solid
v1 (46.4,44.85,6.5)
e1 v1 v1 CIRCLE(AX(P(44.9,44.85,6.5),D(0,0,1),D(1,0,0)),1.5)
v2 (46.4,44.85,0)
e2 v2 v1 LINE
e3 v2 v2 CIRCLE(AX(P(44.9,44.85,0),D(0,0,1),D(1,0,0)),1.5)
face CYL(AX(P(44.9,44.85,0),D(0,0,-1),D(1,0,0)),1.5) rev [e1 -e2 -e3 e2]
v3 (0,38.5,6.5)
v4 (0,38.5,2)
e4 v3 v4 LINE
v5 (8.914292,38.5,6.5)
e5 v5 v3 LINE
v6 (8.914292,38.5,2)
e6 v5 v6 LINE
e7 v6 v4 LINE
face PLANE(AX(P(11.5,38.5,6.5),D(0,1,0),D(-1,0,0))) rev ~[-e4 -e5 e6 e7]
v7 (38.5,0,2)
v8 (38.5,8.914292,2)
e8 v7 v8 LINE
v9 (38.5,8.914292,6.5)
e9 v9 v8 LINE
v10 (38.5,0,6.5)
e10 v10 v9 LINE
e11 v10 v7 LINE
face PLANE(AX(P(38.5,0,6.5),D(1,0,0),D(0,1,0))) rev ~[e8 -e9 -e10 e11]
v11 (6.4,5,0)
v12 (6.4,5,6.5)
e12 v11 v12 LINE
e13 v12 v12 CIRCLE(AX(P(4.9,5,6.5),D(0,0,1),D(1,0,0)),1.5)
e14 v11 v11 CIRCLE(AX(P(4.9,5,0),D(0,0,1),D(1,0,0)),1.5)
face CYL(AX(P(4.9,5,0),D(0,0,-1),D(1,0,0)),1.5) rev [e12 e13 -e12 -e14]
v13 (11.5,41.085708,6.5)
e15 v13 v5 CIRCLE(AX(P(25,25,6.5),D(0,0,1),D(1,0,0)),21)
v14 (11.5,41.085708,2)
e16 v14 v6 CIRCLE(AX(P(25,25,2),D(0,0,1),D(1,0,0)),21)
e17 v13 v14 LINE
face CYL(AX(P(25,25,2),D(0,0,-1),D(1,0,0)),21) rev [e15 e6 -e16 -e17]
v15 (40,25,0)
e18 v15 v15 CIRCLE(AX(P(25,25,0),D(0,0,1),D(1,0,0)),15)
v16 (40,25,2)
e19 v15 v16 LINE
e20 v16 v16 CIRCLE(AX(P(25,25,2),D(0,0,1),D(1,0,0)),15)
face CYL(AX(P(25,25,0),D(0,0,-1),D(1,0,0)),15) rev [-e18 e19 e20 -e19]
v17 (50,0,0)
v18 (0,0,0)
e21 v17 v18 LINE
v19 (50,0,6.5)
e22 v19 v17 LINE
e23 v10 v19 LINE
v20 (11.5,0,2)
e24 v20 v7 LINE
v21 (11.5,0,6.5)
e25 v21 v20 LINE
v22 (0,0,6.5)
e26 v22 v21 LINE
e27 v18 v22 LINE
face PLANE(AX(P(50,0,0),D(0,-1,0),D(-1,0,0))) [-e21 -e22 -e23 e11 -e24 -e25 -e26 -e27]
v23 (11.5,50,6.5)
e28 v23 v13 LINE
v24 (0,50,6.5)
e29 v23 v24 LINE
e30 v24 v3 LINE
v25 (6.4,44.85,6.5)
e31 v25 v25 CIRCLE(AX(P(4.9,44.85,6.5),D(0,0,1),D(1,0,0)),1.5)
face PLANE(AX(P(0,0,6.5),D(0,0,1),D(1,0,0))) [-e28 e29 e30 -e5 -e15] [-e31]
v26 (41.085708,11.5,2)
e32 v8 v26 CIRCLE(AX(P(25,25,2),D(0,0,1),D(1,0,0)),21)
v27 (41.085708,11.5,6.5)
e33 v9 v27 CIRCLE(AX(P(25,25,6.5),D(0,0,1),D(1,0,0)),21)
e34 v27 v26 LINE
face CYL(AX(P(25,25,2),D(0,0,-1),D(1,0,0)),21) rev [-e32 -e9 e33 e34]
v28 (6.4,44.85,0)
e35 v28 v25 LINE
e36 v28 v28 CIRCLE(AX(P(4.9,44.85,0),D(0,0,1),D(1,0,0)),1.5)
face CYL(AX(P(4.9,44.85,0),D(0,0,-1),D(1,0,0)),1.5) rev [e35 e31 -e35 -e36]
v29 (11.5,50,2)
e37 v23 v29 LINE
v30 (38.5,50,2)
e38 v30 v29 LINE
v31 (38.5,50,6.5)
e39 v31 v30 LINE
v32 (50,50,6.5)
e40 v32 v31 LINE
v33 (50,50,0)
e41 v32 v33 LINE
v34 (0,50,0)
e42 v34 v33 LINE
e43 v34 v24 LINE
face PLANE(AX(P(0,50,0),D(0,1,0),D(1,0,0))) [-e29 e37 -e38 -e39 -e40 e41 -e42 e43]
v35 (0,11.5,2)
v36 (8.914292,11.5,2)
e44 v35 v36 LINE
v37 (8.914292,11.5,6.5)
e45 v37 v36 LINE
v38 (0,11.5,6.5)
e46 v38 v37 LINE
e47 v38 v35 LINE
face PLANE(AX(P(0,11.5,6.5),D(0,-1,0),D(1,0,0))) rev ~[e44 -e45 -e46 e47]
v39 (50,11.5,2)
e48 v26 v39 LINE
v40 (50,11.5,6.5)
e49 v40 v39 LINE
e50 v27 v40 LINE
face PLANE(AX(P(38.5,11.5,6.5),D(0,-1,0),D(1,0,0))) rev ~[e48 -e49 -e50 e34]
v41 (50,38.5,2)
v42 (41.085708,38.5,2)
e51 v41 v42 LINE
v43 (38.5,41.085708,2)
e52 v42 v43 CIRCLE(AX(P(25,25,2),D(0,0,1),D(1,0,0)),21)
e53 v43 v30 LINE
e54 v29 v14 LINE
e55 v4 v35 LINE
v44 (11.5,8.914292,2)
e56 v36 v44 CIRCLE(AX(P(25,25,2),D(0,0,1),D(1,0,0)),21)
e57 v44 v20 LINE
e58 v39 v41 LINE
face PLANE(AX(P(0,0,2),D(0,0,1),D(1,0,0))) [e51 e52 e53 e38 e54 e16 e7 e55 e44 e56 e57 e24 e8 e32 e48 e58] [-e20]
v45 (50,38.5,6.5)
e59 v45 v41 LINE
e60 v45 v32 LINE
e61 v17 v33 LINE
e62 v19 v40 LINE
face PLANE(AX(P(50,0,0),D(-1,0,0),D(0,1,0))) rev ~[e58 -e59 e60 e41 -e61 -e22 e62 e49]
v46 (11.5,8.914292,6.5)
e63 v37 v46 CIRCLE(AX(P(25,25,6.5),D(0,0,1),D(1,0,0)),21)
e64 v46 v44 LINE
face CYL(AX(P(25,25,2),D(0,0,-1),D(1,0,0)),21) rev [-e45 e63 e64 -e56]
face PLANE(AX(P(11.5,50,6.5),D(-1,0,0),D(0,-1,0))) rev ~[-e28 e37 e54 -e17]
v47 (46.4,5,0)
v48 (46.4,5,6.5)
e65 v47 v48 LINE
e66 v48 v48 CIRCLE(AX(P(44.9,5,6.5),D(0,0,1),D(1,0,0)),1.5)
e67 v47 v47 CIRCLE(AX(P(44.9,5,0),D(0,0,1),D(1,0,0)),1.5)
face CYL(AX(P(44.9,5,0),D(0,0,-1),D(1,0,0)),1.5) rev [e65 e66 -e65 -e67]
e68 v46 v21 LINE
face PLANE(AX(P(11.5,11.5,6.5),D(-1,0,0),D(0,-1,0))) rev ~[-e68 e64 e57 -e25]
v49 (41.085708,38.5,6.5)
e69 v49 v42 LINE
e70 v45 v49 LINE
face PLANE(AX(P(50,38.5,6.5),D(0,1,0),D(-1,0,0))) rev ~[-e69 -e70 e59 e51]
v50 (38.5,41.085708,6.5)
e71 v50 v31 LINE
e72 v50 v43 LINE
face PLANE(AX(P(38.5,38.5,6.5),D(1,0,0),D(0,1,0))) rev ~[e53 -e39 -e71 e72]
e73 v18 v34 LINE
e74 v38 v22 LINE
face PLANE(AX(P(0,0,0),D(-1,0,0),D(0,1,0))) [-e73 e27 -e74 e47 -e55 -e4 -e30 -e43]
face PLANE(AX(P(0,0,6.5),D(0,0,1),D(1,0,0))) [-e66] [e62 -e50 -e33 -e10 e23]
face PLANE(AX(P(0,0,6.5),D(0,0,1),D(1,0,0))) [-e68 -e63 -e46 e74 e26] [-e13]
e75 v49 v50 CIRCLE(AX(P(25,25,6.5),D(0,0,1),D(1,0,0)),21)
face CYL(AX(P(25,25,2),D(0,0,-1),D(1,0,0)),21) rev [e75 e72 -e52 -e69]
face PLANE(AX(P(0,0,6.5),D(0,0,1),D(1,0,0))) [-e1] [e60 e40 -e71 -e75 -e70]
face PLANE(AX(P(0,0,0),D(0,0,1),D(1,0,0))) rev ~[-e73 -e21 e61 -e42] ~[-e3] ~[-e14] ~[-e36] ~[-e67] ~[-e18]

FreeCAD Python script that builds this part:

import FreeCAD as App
import Part
import Sketcher

V = App.Vector
Q = App.Units.Quantity


def add_polygon(sketch, points):
    """Adds a closed chain of lines whose ends are joined by coincident constraints."""
    first, n = sketch.GeometryCount, len(points)
    for a, b in zip(points, points[1:] + points[:1]):
        sketch.addGeometry(Part.LineSegment(App.Vector(*a, 0), App.Vector(*b, 0)), False)
    for i in range(n):
        sketch.addConstraint(Sketcher.Constraint("Coincident", first + i, 2, first + (i + 1) % n, 1))

doc = App.newDocument("Part")
params = doc.addObject("Spreadsheet::Sheet", "Params")
for row, (alias, value) in enumerate([
    ("sketch1_diameter", "3 mm"),
    ("sketch1_diameter2", "30 mm"),
    ("sketch1_width", "50 mm"),
    ("pad1_length", "2 mm"),
    ("sketch2_diameter", "42 mm"),
    ("sketch2_diameter2", "3 mm"),
    ("sketch2_width", "50 mm"),
    ("pad2_length", "4.5 mm"),
    ("sketch3_width", "27 mm"),
    ("sketch3_width2", "11.5 mm"),
    ("pocket1_length", "4.5 mm"),
], start=1):
    params.set(f"A{row}", alias)
    params.set(f"B{row}", "=" + value)
    params.setAlias(f"B{row}", alias)

body = doc.addObject("PartDesign::Body", "Body")

# Sketch on XY plane
sketch1 = body.newObject("Sketcher::SketchObject", "Sketch")
sketch1.AttachmentSupport = (doc.getObject("XY_Plane"), [""])
sketch1.MapMode = "FlatFace"
add_polygon(sketch1, [(50, 50), (0, 50), (0, 0), (50, 0)])  # lines 0-3
sketch1.addGeometry(Part.Circle(V(4.9, 5, 0), V(0, 0, 1), 1.5), False)  # 4
sketch1.addGeometry(Part.Circle(V(44.9, 5, 0), V(0, 0, 1), 1.5), False)  # 5
sketch1.addGeometry(Part.Circle(V(25, 25, 0), V(0, 0, 1), 15), False)  # 6
sketch1.addGeometry(Part.Circle(V(4.9, 44.9, 0), V(0, 0, 1), 1.5), False)  # 7
sketch1.addGeometry(Part.Circle(V(44.9, 44.9, 0), V(0, 0, 1), 1.5), False)  # 8
sketch1.addConstraint([
    Sketcher.Constraint("Horizontal", 0),
    Sketcher.Constraint("Vertical", 1),
    Sketcher.Constraint("Horizontal", 2),
    Sketcher.Constraint("Vertical", 3),
    Sketcher.Constraint("Coincident", 1, 2, -1, 1),
    Sketcher.Constraint("Equal", 4, 5),
    Sketcher.Constraint("Equal", 5, 7),
    Sketcher.Constraint("Equal", 7, 8),
    Sketcher.Constraint("Horizontal", 4, 3, 5, 3),
    Sketcher.Constraint("Horizontal", 7, 3, 8, 3),
    Sketcher.Constraint("Vertical", 4, 3, 7, 3),
    Sketcher.Constraint("Vertical", 5, 3, 8, 3),
    Sketcher.Constraint("Equal", 2, 1),
    Sketcher.Constraint("Diameter", 4, Q("3 mm")),
    Sketcher.Constraint("Diameter", 6, Q("30 mm")),
    Sketcher.Constraint("DistanceX", 0, 2, 0, 1, Q("50 mm")),
    Sketcher.Constraint("DistanceY", -1, 1, 4, 3, Q("5 mm")),
    Sketcher.Constraint("DistanceX", -1, 1, 6, 3, Q("25 mm")),
    Sketcher.Constraint("DistanceY", -1, 1, 6, 3, Q("25 mm")),
    Sketcher.Constraint("DistanceX", 4, 3, 5, 3, Q("40 mm")),
    Sketcher.Constraint("DistanceX", -1, 1, 4, 3, Q("4.9 mm")),
    Sketcher.Constraint("DistanceY", -1, 1, 7, 3, Q("44.85 mm")),
])
sketch1.setExpression("Constraints[17]", "Params.sketch1_diameter")
sketch1.setExpression("Constraints[18]", "Params.sketch1_diameter2")
sketch1.setExpression("Constraints[19]", "Params.sketch1_width")
pad1 = body.newObject("PartDesign::Pad", "Pad")
pad1.Profile = sketch1
pad1.setExpression("Length", "Params.pad1_length")

# Sketch on XY plane
sketch2 = body.newObject("Sketcher::SketchObject", "Sketch001")
sketch2.AttachmentSupport = (doc.getObject("XY_Plane"), [""])
sketch2.MapMode = "FlatFace"
sketch2.AttachmentOffset = App.Placement(V(0, 0, 2), App.Rotation())
add_polygon(sketch2, [(50, 0), (50, 50), (0, 50), (0, 0)])  # lines 0-3
sketch2.addGeometry(Part.Circle(V(4.9, 5, 0), V(0, 0, 1), 1.5), False)  # 4
sketch2.addGeometry(Part.Circle(V(44.9, 5, 0), V(0, 0, 1), 1.5), False)  # 5
sketch2.addGeometry(Part.Circle(V(4.9, 44.9, 0), V(0, 0, 1), 1.5), False)  # 6
sketch2.addGeometry(Part.Circle(V(25, 25, 0), V(0, 0, 1), 21), False)  # 7
sketch2.addGeometry(Part.Circle(V(44.9, 44.9, 0), V(0, 0, 1), 1.5), False)  # 8
sketch2.addConstraint([
    Sketcher.Constraint("Vertical", 0),
    Sketcher.Constraint("Horizontal", 1),
    Sketcher.Constraint("Vertical", 2),
    Sketcher.Constraint("Horizontal", 3),
    Sketcher.Constraint("Coincident", 2, 2, -1, 1),
    Sketcher.Constraint("Equal", 4, 5),
    Sketcher.Constraint("Equal", 5, 6),
    Sketcher.Constraint("Equal", 6, 8),
    Sketcher.Constraint("Horizontal", 4, 3, 5, 3),
    Sketcher.Constraint("Horizontal", 6, 3, 8, 3),
    Sketcher.Constraint("Vertical", 4, 3, 6, 3),
    Sketcher.Constraint("Vertical", 5, 3, 8, 3),
    Sketcher.Constraint("Equal", 3, 0),
    Sketcher.Constraint("Diameter", 7, Q("42 mm")),
    Sketcher.Constraint("Diameter", 4, Q("3 mm")),
    Sketcher.Constraint("DistanceX", 1, 2, 1, 1, Q("50 mm")),
    Sketcher.Constraint("DistanceY", -1, 1, 4, 3, Q("5 mm")),
    Sketcher.Constraint("DistanceX", -1, 1, 7, 3, Q("25 mm")),
    Sketcher.Constraint("DistanceY", -1, 1, 7, 3, Q("25 mm")),
    Sketcher.Constraint("DistanceX", 4, 3, 5, 3, Q("40 mm")),
    Sketcher.Constraint("DistanceX", -1, 1, 4, 3, Q("4.9 mm")),
    Sketcher.Constraint("DistanceY", -1, 1, 6, 3, Q("44.85 mm")),
])
sketch2.setExpression("Constraints[17]", "Params.sketch2_diameter")
sketch2.setExpression("Constraints[18]", "Params.sketch2_diameter2")
sketch2.setExpression("Constraints[19]", "Params.sketch2_width")
pad2 = body.newObject("PartDesign::Pad", "Pad001")
pad2.Profile = sketch2
pad2.setExpression("Length", "Params.pad2_length")

# Sketch on XY plane
sketch3 = body.newObject("Sketcher::SketchObject", "Sketch002")
sketch3.AttachmentSupport = (doc.getObject("XY_Plane"), [""])
sketch3.MapMode = "FlatFace"
sketch3.AttachmentOffset = App.Placement(V(0, 0, 6.5), App.Rotation())
add_polygon(sketch3, [(12, 12), (12, 0), (38, 0), (38, 12), (50, 12), (50, 38), (38, 38), (38, 50), (12, 50), (12, 38), (0, 38), (0, 12)])  # lines 0-11
sketch3.addConstraint([
    Sketcher.Constraint("Vertical", 0),
    Sketcher.Constraint("Horizontal", 1),
    Sketcher.Constraint("Vertical", 2),
    Sketcher.Constraint("Horizontal", 3),
    Sketcher.Constraint("Vertical", 4),
    Sketcher.Constraint("Horizontal", 5),
    Sketcher.Constraint("Vertical", 6),
    Sketcher.Constraint("Horizontal", 7),
    Sketcher.Constraint("Vertical", 8),
    Sketcher.Constraint("Horizontal", 9),
    Sketcher.Constraint("Vertical", 10),
    Sketcher.Constraint("Horizontal", 11),
    Sketcher.Constraint("PointOnObject", 0, 2, -1),
    Sketcher.Constraint("PointOnObject", 9, 2, -2),
    Sketcher.Constraint("Horizontal", 5, 2, 8, 2),
    Sketcher.Constraint("Horizontal", 3, 2, 10, 2),
    Sketcher.Constraint("Vertical", 2, 2, 5, 2),
    Sketcher.Constraint("Vertical", 0, 2, 7, 2),
    Sketcher.Constraint("Equal", 5, 9),
    Sketcher.Constraint("Equal", 11, 0),
    Sketcher.Constraint("Equal", 7, 4),
    Sketcher.Constraint("Equal", 2, 6),
    Sketcher.Constraint("DistanceX", 1, 1, 1, 2, Q("27 mm")),
    Sketcher.Constraint("DistanceX", 3, 1, 3, 2, Q("11.5 mm")),
])
sketch3.setExpression("Constraints[34]", "Params.sketch3_width")
sketch3.setExpression("Constraints[35]", "Params.sketch3_width2")
pocket1 = body.newObject("PartDesign::Pocket", "Pocket")
pocket1.Profile = sketch3
pocket1.setExpression("Length", "Params.pocket1_length")

doc.recompute()
